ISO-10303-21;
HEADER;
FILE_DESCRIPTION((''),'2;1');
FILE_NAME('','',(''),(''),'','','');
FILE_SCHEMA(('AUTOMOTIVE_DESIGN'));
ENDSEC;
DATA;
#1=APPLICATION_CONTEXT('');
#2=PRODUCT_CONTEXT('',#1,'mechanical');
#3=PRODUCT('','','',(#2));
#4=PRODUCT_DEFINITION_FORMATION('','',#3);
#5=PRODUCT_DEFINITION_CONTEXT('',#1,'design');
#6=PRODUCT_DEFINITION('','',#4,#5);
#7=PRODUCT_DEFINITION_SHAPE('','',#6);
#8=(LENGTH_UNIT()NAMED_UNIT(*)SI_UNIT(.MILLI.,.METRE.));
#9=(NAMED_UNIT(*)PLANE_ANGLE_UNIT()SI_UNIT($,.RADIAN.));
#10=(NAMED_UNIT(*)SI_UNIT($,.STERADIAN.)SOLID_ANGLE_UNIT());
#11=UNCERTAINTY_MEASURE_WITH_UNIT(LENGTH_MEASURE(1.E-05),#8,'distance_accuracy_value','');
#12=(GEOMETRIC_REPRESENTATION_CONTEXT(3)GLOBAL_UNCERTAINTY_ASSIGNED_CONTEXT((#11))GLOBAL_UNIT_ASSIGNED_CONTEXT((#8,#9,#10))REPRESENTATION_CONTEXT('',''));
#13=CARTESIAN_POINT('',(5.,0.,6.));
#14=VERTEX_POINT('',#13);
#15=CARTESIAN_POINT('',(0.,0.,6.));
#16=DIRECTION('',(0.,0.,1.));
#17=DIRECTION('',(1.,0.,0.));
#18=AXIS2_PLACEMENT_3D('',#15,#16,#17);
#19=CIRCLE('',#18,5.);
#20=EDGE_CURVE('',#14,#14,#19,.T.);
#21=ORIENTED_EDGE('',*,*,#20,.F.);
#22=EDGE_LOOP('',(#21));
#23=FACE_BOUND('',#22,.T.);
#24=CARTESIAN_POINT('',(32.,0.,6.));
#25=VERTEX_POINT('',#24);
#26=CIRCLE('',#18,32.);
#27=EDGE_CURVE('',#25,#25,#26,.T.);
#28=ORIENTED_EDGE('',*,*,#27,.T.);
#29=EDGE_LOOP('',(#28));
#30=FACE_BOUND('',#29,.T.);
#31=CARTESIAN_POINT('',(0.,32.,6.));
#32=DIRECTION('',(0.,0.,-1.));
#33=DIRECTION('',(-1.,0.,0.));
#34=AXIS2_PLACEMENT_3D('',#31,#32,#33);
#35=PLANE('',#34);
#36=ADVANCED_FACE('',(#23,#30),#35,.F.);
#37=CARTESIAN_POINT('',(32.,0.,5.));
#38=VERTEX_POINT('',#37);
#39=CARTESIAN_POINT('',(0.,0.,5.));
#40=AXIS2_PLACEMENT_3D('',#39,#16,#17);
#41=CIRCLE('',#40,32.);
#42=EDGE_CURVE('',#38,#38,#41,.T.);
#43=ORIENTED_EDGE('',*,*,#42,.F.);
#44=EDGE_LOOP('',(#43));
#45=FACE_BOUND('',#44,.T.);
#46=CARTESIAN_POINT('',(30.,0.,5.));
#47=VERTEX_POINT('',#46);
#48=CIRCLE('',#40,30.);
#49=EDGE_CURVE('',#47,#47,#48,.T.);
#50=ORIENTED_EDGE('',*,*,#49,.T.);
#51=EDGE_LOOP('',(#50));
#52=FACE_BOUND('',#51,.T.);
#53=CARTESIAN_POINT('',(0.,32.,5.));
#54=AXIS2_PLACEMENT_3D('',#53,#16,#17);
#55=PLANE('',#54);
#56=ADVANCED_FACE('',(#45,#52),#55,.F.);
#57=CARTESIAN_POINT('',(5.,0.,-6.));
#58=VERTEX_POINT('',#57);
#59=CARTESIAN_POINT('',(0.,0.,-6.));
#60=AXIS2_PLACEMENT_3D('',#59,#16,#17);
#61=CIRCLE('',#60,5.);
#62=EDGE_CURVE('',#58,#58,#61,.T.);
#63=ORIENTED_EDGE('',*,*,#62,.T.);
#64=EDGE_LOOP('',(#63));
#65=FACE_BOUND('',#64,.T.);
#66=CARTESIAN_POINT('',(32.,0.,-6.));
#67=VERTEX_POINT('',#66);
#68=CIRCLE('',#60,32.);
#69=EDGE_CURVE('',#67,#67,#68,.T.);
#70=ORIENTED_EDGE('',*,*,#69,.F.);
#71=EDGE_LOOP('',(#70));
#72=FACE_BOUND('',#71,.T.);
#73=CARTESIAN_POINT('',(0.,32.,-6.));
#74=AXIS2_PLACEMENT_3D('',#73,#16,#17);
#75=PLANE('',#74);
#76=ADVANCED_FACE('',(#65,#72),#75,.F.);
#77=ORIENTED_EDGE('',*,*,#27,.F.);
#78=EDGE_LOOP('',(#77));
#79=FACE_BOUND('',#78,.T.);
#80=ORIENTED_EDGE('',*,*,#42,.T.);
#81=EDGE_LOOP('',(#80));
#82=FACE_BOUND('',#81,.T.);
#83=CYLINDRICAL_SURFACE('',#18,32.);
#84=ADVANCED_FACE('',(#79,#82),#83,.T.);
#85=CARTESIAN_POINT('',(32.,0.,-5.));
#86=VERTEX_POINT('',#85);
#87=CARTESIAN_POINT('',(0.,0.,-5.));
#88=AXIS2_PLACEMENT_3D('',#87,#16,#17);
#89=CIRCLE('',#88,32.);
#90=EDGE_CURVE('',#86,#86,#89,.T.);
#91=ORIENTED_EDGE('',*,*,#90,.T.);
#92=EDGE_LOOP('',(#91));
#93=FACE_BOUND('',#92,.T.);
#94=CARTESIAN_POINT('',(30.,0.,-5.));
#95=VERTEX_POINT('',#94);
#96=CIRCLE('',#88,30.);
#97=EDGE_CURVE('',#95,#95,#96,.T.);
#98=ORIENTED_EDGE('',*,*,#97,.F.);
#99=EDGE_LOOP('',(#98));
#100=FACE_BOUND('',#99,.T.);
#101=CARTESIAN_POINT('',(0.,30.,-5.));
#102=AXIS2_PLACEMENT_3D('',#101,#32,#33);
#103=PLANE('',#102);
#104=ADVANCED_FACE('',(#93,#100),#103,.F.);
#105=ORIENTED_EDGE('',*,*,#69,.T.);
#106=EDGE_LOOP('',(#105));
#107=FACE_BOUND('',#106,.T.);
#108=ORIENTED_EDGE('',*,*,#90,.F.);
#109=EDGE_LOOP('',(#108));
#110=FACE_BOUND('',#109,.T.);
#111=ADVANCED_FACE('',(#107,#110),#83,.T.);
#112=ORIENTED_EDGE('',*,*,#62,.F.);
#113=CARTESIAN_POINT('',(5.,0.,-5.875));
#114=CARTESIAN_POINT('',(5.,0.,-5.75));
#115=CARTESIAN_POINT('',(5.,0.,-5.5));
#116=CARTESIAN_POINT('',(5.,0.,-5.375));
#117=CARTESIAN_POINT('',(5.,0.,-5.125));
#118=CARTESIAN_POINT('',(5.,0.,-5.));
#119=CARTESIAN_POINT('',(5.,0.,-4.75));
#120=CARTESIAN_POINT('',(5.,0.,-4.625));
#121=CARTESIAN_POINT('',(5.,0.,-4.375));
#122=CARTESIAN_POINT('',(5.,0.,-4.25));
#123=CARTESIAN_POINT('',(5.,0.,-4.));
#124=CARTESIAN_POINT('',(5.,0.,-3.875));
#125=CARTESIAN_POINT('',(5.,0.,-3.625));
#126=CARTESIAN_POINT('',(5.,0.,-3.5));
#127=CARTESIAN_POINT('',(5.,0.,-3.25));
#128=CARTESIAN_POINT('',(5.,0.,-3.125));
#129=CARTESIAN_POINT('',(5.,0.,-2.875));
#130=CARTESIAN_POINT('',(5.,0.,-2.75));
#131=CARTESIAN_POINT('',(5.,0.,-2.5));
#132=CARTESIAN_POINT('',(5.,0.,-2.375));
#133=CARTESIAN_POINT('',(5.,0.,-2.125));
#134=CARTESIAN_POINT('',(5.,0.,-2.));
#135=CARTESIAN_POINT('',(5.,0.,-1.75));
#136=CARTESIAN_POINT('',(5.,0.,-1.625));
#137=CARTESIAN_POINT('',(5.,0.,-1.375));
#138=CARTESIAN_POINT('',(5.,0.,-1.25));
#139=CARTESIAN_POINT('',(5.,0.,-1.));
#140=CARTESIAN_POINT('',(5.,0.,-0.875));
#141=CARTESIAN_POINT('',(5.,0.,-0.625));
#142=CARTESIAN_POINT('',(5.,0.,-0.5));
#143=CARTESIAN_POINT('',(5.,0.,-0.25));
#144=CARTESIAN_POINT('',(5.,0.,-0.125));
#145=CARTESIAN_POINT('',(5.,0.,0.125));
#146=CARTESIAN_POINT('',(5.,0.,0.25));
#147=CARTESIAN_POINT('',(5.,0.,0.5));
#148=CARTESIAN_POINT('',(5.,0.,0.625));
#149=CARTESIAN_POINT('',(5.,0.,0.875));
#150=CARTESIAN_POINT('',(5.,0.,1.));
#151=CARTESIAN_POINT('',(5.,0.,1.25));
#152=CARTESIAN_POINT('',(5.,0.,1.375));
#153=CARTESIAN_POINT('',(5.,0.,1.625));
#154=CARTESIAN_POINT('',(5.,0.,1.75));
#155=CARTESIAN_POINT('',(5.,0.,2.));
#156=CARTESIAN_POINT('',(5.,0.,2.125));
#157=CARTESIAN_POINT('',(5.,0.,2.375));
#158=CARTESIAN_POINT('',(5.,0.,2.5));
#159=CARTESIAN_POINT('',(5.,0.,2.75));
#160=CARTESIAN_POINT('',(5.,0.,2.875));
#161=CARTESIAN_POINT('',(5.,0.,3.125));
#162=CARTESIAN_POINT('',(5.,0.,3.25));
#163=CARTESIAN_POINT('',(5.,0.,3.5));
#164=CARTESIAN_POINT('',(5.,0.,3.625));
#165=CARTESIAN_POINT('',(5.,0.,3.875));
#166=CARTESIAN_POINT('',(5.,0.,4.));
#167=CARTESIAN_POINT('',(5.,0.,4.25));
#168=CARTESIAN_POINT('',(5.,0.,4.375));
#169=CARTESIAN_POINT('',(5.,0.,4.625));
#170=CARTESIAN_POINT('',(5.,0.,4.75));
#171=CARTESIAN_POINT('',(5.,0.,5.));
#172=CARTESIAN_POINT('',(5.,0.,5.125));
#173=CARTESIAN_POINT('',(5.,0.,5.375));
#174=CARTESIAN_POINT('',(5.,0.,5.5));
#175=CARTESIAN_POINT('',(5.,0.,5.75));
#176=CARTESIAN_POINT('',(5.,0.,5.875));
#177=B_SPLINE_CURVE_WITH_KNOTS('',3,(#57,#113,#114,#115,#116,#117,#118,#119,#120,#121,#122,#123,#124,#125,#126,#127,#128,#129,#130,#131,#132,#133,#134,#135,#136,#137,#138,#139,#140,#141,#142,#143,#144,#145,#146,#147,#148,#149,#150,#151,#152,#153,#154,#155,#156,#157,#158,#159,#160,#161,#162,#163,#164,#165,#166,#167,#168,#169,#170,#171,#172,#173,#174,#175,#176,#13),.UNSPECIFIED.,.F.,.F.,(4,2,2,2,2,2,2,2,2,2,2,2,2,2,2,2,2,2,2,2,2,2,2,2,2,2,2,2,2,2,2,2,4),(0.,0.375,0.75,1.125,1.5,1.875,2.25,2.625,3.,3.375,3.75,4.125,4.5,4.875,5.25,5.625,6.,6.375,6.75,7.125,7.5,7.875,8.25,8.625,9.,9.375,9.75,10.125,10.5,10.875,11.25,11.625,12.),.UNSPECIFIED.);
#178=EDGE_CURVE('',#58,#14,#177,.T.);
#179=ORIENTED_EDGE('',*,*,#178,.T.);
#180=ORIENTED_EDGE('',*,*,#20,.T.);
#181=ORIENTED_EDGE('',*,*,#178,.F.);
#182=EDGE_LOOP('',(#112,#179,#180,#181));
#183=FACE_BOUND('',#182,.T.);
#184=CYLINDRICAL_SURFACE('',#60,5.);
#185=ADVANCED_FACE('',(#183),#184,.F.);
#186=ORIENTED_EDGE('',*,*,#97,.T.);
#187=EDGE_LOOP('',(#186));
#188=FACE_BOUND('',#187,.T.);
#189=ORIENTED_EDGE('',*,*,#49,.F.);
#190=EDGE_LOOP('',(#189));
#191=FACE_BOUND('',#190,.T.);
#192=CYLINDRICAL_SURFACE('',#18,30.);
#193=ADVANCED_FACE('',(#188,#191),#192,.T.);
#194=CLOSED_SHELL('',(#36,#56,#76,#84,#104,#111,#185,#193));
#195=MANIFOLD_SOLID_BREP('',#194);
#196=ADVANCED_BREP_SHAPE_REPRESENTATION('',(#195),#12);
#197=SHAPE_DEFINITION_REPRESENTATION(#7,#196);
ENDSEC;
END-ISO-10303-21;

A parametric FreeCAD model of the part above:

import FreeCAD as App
import Part
import Sketcher
Q = App.Units.Quantity

doc = App.newDocument("Part")
body = doc.addObject("PartDesign::Body", "Body")

# Sketch on YZ plane
sketch1 = doc.addObject("Sketcher::SketchObject", "Sketch")
body.addObject(sketch1)
sketch1.AttachmentSupport = (doc.YZ_Plane, [""])
sketch1.MapMode = "FlatFace"
sketch1.addGeometry(Part.LineSegment(App.Vector(30, 5, 0), App.Vector(32, 5, 0)), False)
sketch1.addGeometry(Part.LineSegment(App.Vector(32, 5, 0), App.Vector(32, 6, 0)), False)
sketch1.addGeometry(Part.LineSegment(App.Vector(32, 6, 0), App.Vector(0, 6, 0)), False)
sketch1.addGeometry(Part.LineSegment(App.Vector(0, 6, 0), App.Vector(0, -6, 0)), False)
sketch1.addGeometry(Part.LineSegment(App.Vector(0, -6, 0), App.Vector(32, -6, 0)), False)
sketch1.addGeometry(Part.LineSegment(App.Vector(32, -6, 0), App.Vector(32, -5, 0)), False)
sketch1.addGeometry(Part.LineSegment(App.Vector(32, -5, 0), App.Vector(30, -5, 0)), False)
sketch1.addGeometry(Part.LineSegment(App.Vector(30, -5, 0), App.Vector(30, 5, 0)), False)
sketch1.addConstraint(Sketcher.Constraint("Coincident", 0, 2, 1, 1))
sketch1.addConstraint(Sketcher.Constraint("Coincident", 1, 2, 2, 1))
sketch1.addConstraint(Sketcher.Constraint("Coincident", 2, 2, 3, 1))
sketch1.addConstraint(Sketcher.Constraint("Coincident", 3, 2, 4, 1))
sketch1.addConstraint(Sketcher.Constraint("Coincident", 4, 2, 5, 1))
sketch1.addConstraint(Sketcher.Constraint("Coincident", 5, 2, 6, 1))
sketch1.addConstraint(Sketcher.Constraint("Coincident", 6, 2, 7, 1))
sketch1.addConstraint(Sketcher.Constraint("Coincident", 7, 2, 0, 1))
sketch1.addConstraint(Sketcher.Constraint("Horizontal", 0))
sketch1.addConstraint(Sketcher.Constraint("Vertical", 1))
sketch1.addConstraint(Sketcher.Constraint("Horizontal", 2))
sketch1.addConstraint(Sketcher.Constraint("Vertical", 3))
sketch1.addConstraint(Sketcher.Constraint("Horizontal", 4))
sketch1.addConstraint(Sketcher.Constraint("Vertical", 5))
sketch1.addConstraint(Sketcher.Constraint("Horizontal", 6))
sketch1.addConstraint(Sketcher.Constraint("Vertical", 7))
sketch1.addConstraint(Sketcher.Constraint("Symmetric", 2, 2, 3, 2, -1, 1))
sketch1.addConstraint(Sketcher.Constraint("Symmetric", 0, 2, 5, 2, -1))
sketch1.addConstraint(Sketcher.Constraint("DistanceX", 0, 1, 0, 2, Q("2 mm")))
sketch1.addConstraint(Sketcher.Constraint("DistanceX", 2, 2, 2, 1, Q("32 mm")))
sketch1.addConstraint(Sketcher.Constraint("DistanceY", 1, 1, 1, 2, Q("1 mm")))
sketch1.addConstraint(Sketcher.Constraint("DistanceY", 3, 2, 3, 1, Q("12 mm")))
revolution = doc.addObject("PartDesign::Revolution", "Revolution")
body.addObject(revolution)
revolution.Profile = sketch1
revolution.ReferenceAxis = (sketch1, ["V_Axis"])
revolution.Angle = 360

# Sketch on XY plane
sketch2 = doc.addObject("Sketcher::SketchObject", "Sketch001")
body.addObject(sketch2)
sketch2.AttachmentSupport = (doc.XY_Plane, [""])
sketch2.MapMode = "FlatFace"
sketch2.addGeometry(Part.Circle(App.Vector(0, 0, 0), App.Vector(0, 0, 1), 5), False)
sketch2.addConstraint(Sketcher.Constraint("Coincident", 0, 3, -1, 1))
sketch2.addConstraint(Sketcher.Constraint("Diameter", 0, Q("10 mm")))
pocket1 = doc.addObject("PartDesign::Pocket", "Pocket")
body.addObject(pocket1)
pocket1.Profile = sketch2
pocket1.Type = "ThroughAll"
pocket1.Midplane = True

doc.recompute()
